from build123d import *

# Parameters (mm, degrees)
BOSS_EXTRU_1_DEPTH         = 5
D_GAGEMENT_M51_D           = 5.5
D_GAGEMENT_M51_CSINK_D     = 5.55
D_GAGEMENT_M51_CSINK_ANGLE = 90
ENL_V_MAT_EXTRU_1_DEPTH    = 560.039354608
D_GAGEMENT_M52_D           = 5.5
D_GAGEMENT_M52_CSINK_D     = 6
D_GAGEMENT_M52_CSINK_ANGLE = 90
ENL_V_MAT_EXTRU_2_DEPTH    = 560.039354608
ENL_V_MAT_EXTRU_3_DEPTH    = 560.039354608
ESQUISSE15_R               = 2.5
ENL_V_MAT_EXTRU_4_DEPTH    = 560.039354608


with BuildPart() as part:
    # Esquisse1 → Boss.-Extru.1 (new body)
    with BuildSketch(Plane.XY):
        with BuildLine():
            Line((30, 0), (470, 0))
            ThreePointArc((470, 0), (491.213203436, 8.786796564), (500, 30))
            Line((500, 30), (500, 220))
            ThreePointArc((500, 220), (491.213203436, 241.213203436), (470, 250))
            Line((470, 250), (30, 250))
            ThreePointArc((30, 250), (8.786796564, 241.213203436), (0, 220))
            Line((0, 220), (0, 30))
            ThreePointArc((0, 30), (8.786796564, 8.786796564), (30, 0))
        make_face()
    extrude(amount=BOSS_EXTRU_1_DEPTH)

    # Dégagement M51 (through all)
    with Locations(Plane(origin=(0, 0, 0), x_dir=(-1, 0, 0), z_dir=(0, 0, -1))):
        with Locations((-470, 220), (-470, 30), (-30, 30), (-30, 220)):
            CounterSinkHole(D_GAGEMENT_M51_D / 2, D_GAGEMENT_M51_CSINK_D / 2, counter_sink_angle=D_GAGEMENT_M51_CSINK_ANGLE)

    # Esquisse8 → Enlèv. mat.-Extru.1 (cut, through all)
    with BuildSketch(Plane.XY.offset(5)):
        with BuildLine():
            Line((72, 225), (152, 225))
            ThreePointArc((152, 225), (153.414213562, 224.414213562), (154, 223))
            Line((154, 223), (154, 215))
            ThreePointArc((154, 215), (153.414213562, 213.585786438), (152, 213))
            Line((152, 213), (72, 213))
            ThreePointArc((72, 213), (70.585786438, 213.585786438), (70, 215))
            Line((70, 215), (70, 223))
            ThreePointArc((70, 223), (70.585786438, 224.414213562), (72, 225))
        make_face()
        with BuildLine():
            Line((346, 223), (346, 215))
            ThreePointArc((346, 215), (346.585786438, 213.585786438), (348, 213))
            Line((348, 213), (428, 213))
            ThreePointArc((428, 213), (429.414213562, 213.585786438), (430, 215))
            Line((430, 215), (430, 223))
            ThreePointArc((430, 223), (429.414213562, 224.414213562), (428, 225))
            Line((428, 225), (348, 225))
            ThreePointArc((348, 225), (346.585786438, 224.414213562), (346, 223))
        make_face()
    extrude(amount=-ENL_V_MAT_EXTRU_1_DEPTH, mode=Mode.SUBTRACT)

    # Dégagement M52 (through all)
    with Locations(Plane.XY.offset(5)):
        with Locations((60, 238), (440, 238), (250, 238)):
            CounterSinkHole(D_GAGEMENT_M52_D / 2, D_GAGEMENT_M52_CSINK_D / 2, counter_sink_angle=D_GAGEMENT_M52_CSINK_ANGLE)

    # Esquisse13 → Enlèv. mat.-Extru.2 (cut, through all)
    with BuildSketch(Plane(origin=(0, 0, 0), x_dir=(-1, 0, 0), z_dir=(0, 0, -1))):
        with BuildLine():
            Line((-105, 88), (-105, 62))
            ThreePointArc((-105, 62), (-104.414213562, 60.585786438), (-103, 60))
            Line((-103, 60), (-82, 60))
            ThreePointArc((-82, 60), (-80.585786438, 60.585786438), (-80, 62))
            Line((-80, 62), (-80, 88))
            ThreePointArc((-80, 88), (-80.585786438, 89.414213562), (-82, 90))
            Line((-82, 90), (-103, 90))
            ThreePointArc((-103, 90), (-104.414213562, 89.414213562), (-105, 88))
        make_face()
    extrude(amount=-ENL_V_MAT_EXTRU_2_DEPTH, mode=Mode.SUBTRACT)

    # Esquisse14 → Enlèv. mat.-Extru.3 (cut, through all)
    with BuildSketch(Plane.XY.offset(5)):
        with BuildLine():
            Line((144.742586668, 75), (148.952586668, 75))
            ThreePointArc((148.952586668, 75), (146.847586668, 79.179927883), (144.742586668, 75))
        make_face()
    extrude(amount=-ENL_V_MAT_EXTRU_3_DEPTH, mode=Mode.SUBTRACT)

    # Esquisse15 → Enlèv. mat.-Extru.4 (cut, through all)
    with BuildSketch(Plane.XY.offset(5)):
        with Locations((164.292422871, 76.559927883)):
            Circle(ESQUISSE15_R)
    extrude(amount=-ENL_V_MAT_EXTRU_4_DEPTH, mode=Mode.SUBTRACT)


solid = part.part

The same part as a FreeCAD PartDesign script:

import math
import FreeCAD as App
import Part
import Sketcher

V = App.Vector

doc = App.newDocument("Part")
body = doc.addObject("PartDesign::Body", "Body")

# Sketch on XY plane
sketch1 = body.newObject("Sketcher::SketchObject", "Sketch")
sketch1.AttachmentSupport = (doc.getObject("XY_Plane"), [""])
sketch1.MapMode = "FlatFace"
sketch1.addGeometry([
    Part.LineSegment(V(30, 0, 0), V(470, 0, 0)),  # 0
    Part.ArcOfCircle(Part.Circle(V(470, 30, 0), V(0, 0, 1), 30), math.radians(-90), math.radians(0)),  # 1
    Part.LineSegment(V(500, 30, 0), V(500, 220, 0)),  # 2
    Part.ArcOfCircle(Part.Circle(V(470, 220, 0), V(0, 0, 1), 30), math.radians(0), math.radians(90)),  # 3
    Part.LineSegment(V(470, 250, 0), V(30, 250, 0)),  # 4
    Part.ArcOfCircle(Part.Circle(V(30, 220, 0), V(0, 0, 1), 30), math.radians(90), math.radians(180)),  # 5
    Part.LineSegment(V(0, 220, 0), V(0, 30, 0)),  # 6
    Part.ArcOfCircle(Part.Circle(V(30, 30, 0), V(0, 0, 1), 30), math.radians(180), math.radians(270)),  # 7
], False)
sketch1.addConstraint([
    Sketcher.Constraint("Tangent", 0, 2, 1, 1),
    Sketcher.Constraint("Tangent", 1, 2, 2, 1),
    Sketcher.Constraint("Tangent", 2, 2, 3, 1),
    Sketcher.Constraint("Tangent", 3, 2, 4, 1),
    Sketcher.Constraint("Tangent", 4, 2, 5, 1),
    Sketcher.Constraint("Tangent", 5, 2, 6, 1),
    Sketcher.Constraint("Tangent", 6, 2, 7, 1),
    Sketcher.Constraint("Tangent", 7, 2, 0, 1),
    Sketcher.Constraint("Horizontal", 0),
    Sketcher.Constraint("Vertical", 2),
    Sketcher.Constraint("Horizontal", 4),
    Sketcher.Constraint("Vertical", 6),
    Sketcher.Constraint("Equal", 1, 3),
    Sketcher.Constraint("Equal", 3, 5),
    Sketcher.Constraint("Equal", 5, 7),
    Sketcher.Constraint("PointOnObject", 0, 2, -1),
    Sketcher.Constraint("PointOnObject", 5, 2, -2),
    Sketcher.Constraint("Radius", 1, 30.0),
    Sketcher.Constraint("DistanceX", 0, 1, 0, 2, 440.0),
    Sketcher.Constraint("DistanceY", 2, 1, 2, 2, 190.0),
])
pad1 = body.newObject("PartDesign::Pad", "Pad")
pad1.Profile = sketch1
pad1.Length = 5

# Sketch on XY plane
sketch2 = body.newObject("Sketcher::SketchObject", "Sketch001")
sketch2.AttachmentSupport = (doc.getObject("XY_Plane"), [""])
sketch2.MapMode = "FlatFace"
sketch2.addGeometry([
    Part.Circle(V(470, 220, 0), V(0, 0, 1), 2.75),
    Part.Circle(V(470, 30, 0), V(0, 0, 1), 2.75),
    Part.Circle(V(30, 30, 0), V(0, 0, 1), 2.75),
    Part.Circle(V(30, 220, 0), V(0, 0, 1), 2.75),
], False)
sketch2.addConstraint([
    Sketcher.Constraint("Equal", 0, 1),
    Sketcher.Constraint("Equal", 1, 2),
    Sketcher.Constraint("Equal", 2, 3),
    Sketcher.Constraint("Horizontal", 1, 3, 2, 3),
    Sketcher.Constraint("Horizontal", 0, 3, 3, 3),
    Sketcher.Constraint("Vertical", 0, 3, 1, 3),
    Sketcher.Constraint("Vertical", 2, 3, 3, 3),
    Sketcher.Constraint("Diameter", 0, 5.5),
    Sketcher.Constraint("DistanceX", -1, 1, 0, 3, 470.0),
    Sketcher.Constraint("DistanceY", -1, 1, 0, 3, 220.0),
    Sketcher.Constraint("DistanceY", -1, 1, 1, 3, 30.0),
    Sketcher.Constraint("DistanceX", -1, 1, 2, 3, 30.0),
])
doc.recompute()
hole = body.newObject("PartDesign::Hole", "Hole")
hole.Profile = sketch2
hole.ThreadType = "None"
hole.Diameter = 5.5
hole.DepthType = "ThroughAll"
hole.HoleCutType = "Countersink"
hole.HoleCutDiameter = 5.55
hole.HoleCutCountersinkAngle = 90
hole.Reversed = True

# Sketch on XY plane
sketch3 = body.newObject("Sketcher::SketchObject", "Sketch002")
sketch3.AttachmentSupport = (doc.getObject("XY_Plane"), [""])
sketch3.MapMode = "FlatFace"
sketch3.AttachmentOffset = App.Placement(V(0, 0, 5), App.Rotation())
sketch3.addGeometry([
    Part.LineSegment(V(152, 225, 0), V(72, 225, 0)),  # 0
    Part.ArcOfCircle(Part.Circle(V(72, 223, 0), V(0, 0, 1), 2), math.radians(90), math.radians(180)),  # 1
    Part.LineSegment(V(70, 223, 0), V(70, 215, 0)),  # 2
    Part.ArcOfCircle(Part.Circle(V(72, 215, 0), V(0, 0, 1), 2), math.radians(-180), math.radians(-90)),  # 3
    Part.LineSegment(V(72, 213, 0), V(152, 213, 0)),  # 4
    Part.ArcOfCircle(Part.Circle(V(152, 215, 0), V(0, 0, 1), 2), math.radians(-90), math.radians(0)),  # 5
    Part.LineSegment(V(154, 215, 0), V(154, 223, 0)),  # 6
    Part.ArcOfCircle(Part.Circle(V(152, 223, 0), V(0, 0, 1), 2), math.radians(0), math.radians(90)),  # 7
    Part.LineSegment(V(346, 223, 0), V(346, 215, 0)),  # 8
    Part.ArcOfCircle(Part.Circle(V(348, 215, 0), V(0, 0, 1), 2), math.radians(-180), math.radians(-90)),  # 9
    Part.LineSegment(V(348, 213, 0), V(428, 213, 0)),  # 10
    Part.ArcOfCircle(Part.Circle(V(428, 215, 0), V(0, 0, 1), 2), math.radians(-90), math.radians(0)),  # 11
    Part.LineSegment(V(430, 215, 0), V(430, 223, 0)),  # 12
    Part.ArcOfCircle(Part.Circle(V(428, 223, 0), V(0, 0, 1), 2), math.radians(0), math.radians(90)),  # 13
    Part.LineSegment(V(428, 225, 0), V(348, 225, 0)),  # 14
    Part.ArcOfCircle(Part.Circle(V(348, 223, 0), V(0, 0, 1), 2), math.radians(90), math.radians(180)),  # 15
], False)
sketch3.addConstraint([
    Sketcher.Constraint("Tangent", 0, 2, 1, 1),
    Sketcher.Constraint("Tangent", 1, 2, 2, 1),
    Sketcher.Constraint("Tangent", 2, 2, 3, 1),
    Sketcher.Constraint("Tangent", 3, 2, 4, 1),
    Sketcher.Constraint("Tangent", 4, 2, 5, 1),
    Sketcher.Constraint("Tangent", 5, 2, 6, 1),
    Sketcher.Constraint("Tangent", 6, 2, 7, 1),
    Sketcher.Constraint("Tangent", 7, 2, 0, 1),
    Sketcher.Constraint("Tangent", 8, 2, 9, 1),
    Sketcher.Constraint("Tangent", 9, 2, 10, 1),
    Sketcher.Constraint("Tangent", 10, 2, 11, 1),
    Sketcher.Constraint("Tangent", 11, 2, 12, 1),
    Sketcher.Constraint("Tangent", 12, 2, 13, 1),
    Sketcher.Constraint("Tangent", 13, 2, 14, 1),
    Sketcher.Constraint("Tangent", 14, 2, 15, 1),
    Sketcher.Constraint("Tangent", 15, 2, 8, 1),
    Sketcher.Constraint("Horizontal", 0),
    Sketcher.Constraint("Vertical", 2),
    Sketcher.Constraint("Horizontal", 4),
    Sketcher.Constraint("Vertical", 6),
    Sketcher.Constraint("Vertical", 8),
    Sketcher.Constraint("Horizontal", 10),
    Sketcher.Constraint("Vertical", 12),
    Sketcher.Constraint("Horizontal", 14),
    Sketcher.Constraint("Equal", 1, 3),
    Sketcher.Constraint("Equal", 3, 5),
    Sketcher.Constraint("Equal", 5, 7),
    Sketcher.Constraint("Equal", 7, 9),
    Sketcher.Constraint("Equal", 9, 11),
    Sketcher.Constraint("Equal", 11, 13),
    Sketcher.Constraint("Equal", 13, 15),
    Sketcher.Constraint("Horizontal", 5, 3, 9, 3),
    Sketcher.Constraint("Horizontal", 7, 3, 13, 3),
    Sketcher.Constraint("Equal", 4, 10),
    Sketcher.Constraint("Radius", 1, 2.0),
    Sketcher.Constraint("DistanceX", 0, 2, 0, 1, 80.0),
    Sketcher.Constraint("DistanceY", 2, 2, 2, 1, 8.0),
    Sketcher.Constraint("DistanceX", -1, 1, 1, 3, 72.0),
    Sketcher.Constraint("DistanceY", -1, 1, 1, 3, 223.0),
    Sketcher.Constraint("DistanceX", -1, 1, 9, 3, 348.0),
])
pocket1 = body.newObject("PartDesign::Pocket", "Pocket")
pocket1.Profile = sketch3
pocket1.Type = "ThroughAll"

# Sketch on XY plane
sketch4 = body.newObject("Sketcher::SketchObject", "Sketch003")
sketch4.AttachmentSupport = (doc.getObject("XY_Plane"), [""])
sketch4.MapMode = "FlatFace"
sketch4.AttachmentOffset = App.Placement(V(0, 0, 5), App.Rotation())
sketch4.addGeometry([
    Part.Circle(V(60, 238, 0), V(0, 0, 1), 2.75),
    Part.Circle(V(440, 238, 0), V(0, 0, 1), 2.75),
    Part.Circle(V(250, 238, 0), V(0, 0, 1), 2.75),
], False)
sketch4.addConstraint([
    Sketcher.Constraint("Equal", 0, 1),
    Sketcher.Constraint("Equal", 1, 2),
    Sketcher.Constraint("Horizontal", 0, 3, 1, 3),
    Sketcher.Constraint("Horizontal", 1, 3, 2, 3),
    Sketcher.Constraint("Diameter", 0, 5.5),
    Sketcher.Constraint("DistanceX", -1, 1, 0, 3, 60.0),
    Sketcher.Constraint("DistanceY", -1, 1, 0, 3, 238.0),
    Sketcher.Constraint("DistanceX", -1, 1, 1, 3, 440.0),
    Sketcher.Constraint("DistanceX", -1, 1, 2, 3, 250.0),
])
doc.recompute()
hole2 = body.newObject("PartDesign::Hole", "Hole001")
hole2.Profile = sketch4
hole2.ThreadType = "None"
hole2.Diameter = 5.5
hole2.DepthType = "ThroughAll"
hole2.HoleCutType = "Countersink"
hole2.HoleCutDiameter = 6
hole2.HoleCutCountersinkAngle = 90

# Sketch on XY plane
sketch5 = body.newObject("Sketcher::SketchObject", "Sketch004")
sketch5.AttachmentSupport = (doc.getObject("XY_Plane"), [""])
sketch5.MapMode = "FlatFace"
sketch5.addGeometry([
    Part.LineSegment(V(105, 88, 0), V(105, 62, 0)),  # 0
    Part.ArcOfCircle(Part.Circle(V(103, 62, 0), V(0, 0, 1), 2), math.radians(-90), math.radians(0)),  # 1
    Part.LineSegment(V(103, 60, 0), V(82, 60, 0)),  # 2
    Part.ArcOfCircle(Part.Circle(V(82, 62, 0), V(0, 0, 1), 2), math.radians(-180), math.radians(-90)),  # 3
    Part.LineSegment(V(80, 62, 0), V(80, 88, 0)),  # 4
    Part.ArcOfCircle(Part.Circle(V(82, 88, 0), V(0, 0, 1), 2), math.radians(90), math.radians(180)),  # 5
    Part.LineSegment(V(82, 90, 0), V(103, 90, 0)),  # 6
    Part.ArcOfCircle(Part.Circle(V(103, 88, 0), V(0, 0, 1), 2), math.radians(0), math.radians(90)),  # 7
], False)
sketch5.addConstraint([
    Sketcher.Constraint("Tangent", 0, 2, 1, 2),
    Sketcher.Constraint("Tangent", 1, 1, 2, 1),
    Sketcher.Constraint("Tangent", 2, 2, 3, 2),
    Sketcher.Constraint("Tangent", 3, 1, 4, 1),
    Sketcher.Constraint("Tangent", 4, 2, 5, 2),
    Sketcher.Constraint("Tangent", 5, 1, 6, 1),
    Sketcher.Constraint("Tangent", 6, 2, 7, 2),
    Sketcher.Constraint("Tangent", 7, 1, 0, 1),
    Sketcher.Constraint("Vertical", 0),
    Sketcher.Constraint("Horizontal", 2),
    Sketcher.Constraint("Vertical", 4),
    Sketcher.Constraint("Horizontal", 6),
    Sketcher.Constraint("Equal", 1, 3),
    Sketcher.Constraint("Equal", 3, 5),
    Sketcher.Constraint("Equal", 5, 7),
    Sketcher.Constraint("Radius", 1, 2.0),
    Sketcher.Constraint("DistanceX", 2, 2, 2, 1, 21.0),
    Sketcher.Constraint("DistanceY", 0, 2, 0, 1, 26.0),
    Sketcher.Constraint("DistanceX", -1, 1, 1, 3, 103.0),
    Sketcher.Constraint("DistanceY", -1, 1, 1, 3, 62.0),
])
pocket2 = body.newObject("PartDesign::Pocket", "Pocket001")
pocket2.Profile = sketch5
pocket2.Type = "ThroughAll"
pocket2.Reversed = True

# Sketch on XY plane
sketch6 = body.newObject("Sketcher::SketchObject", "Sketch005")
sketch6.AttachmentSupport = (doc.getObject("XY_Plane"), [""])
sketch6.MapMode = "FlatFace"
sketch6.AttachmentOffset = App.Placement(V(0, 0, 5), App.Rotation())
sketch6.addGeometry([
    Part.LineSegment(V(144.742587, 75, 0), V(148.952587, 75, 0)),
    Part.ArcOfCircle(Part.Circle(V(146.847587, 76.559928, 0), V(0, 0, 1), 2.62), math.radians(-36.540605), math.radians(216.540605)),
], False)
sketch6.addConstraint([
    Sketcher.Constraint("Coincident", 0, 1, 1, 2),
    Sketcher.Constraint("Coincident", 1, 1, 0, 2),
    Sketcher.Constraint("Horizontal", 0),
    Sketcher.Constraint("Radius", 1, 2.62),
    Sketcher.Constraint("DistanceY", -1, 1, 0, 1, 75.0),
    Sketcher.Constraint("DistanceX", 0, 1, 0, 2, 4.21),
    Sketcher.Constraint("DistanceX", -1, 1, 1, 3, 146.847587),
])
pocket3 = body.newObject("PartDesign::Pocket", "Pocket002")
pocket3.Profile = sketch6
pocket3.Type = "ThroughAll"

# Sketch on XY plane
sketch7 = body.newObject("Sketcher::SketchObject", "Sketch006")
sketch7.AttachmentSupport = (doc.getObject("XY_Plane"), [""])
sketch7.MapMode = "FlatFace"
sketch7.AttachmentOffset = App.Placement(V(0, 0, 5), App.Rotation())
sketch7.addGeometry(Part.Circle(V(164.292423, 76.559928, 0), V(0, 0, 1), 2.5), False)
sketch7.addConstraint([
    Sketcher.Constraint("Diameter", 0, 5.0),
    Sketcher.Constraint("DistanceX", -1, 1, 0, 3, 164.292423),
    Sketcher.Constraint("DistanceY", -1, 1, 0, 3, 76.559928),
])
pocket4 = body.newObject("PartDesign::Pocket", "Pocket003")
pocket4.Profile = sketch7
pocket4.Type = "ThroughAll"

doc.recompute()
